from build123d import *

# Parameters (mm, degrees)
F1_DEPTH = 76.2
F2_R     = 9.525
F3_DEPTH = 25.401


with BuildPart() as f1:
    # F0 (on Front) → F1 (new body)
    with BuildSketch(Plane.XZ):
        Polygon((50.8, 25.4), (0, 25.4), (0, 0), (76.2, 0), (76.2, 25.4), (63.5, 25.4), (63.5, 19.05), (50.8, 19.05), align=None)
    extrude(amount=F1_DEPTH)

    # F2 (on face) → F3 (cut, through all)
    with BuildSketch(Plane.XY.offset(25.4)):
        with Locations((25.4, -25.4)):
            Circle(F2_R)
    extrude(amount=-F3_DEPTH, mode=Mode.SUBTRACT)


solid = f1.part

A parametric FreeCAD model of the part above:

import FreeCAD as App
import Part
import Sketcher
Q = App.Units.Quantity

doc = App.newDocument("Part")
body = doc.addObject("PartDesign::Body", "Body")

sketch1 = body.newObject("Sketcher::SketchObject", "Sketch")
sketch1.AttachmentSupport = (doc.getObject("XZ_Plane"), [""])
sketch1.MapMode = "FlatFace"
sketch1.addGeometry([
    Part.LineSegment(App.Vector(51, 25, 0), App.Vector(0, 25, 0)),
    Part.LineSegment(App.Vector(0, 25, 0), App.Vector(0, 0, 0)),
    Part.LineSegment(App.Vector(0, 0, 0), App.Vector(76, 0, 0)),
    Part.LineSegment(App.Vector(76, 0, 0), App.Vector(76, 25, 0)),
    Part.LineSegment(App.Vector(76, 25, 0), App.Vector(64, 25, 0)),
    Part.LineSegment(App.Vector(64, 25, 0), App.Vector(64, 19, 0)),
    Part.LineSegment(App.Vector(64, 19, 0), App.Vector(51, 19, 0)),
    Part.LineSegment(App.Vector(51, 19, 0), App.Vector(51, 25, 0)),
], False)
sketch1.addConstraint([
    Sketcher.Constraint("Coincident", 0, 2, 1, 1),
    Sketcher.Constraint("Coincident", 1, 2, 2, 1),
    Sketcher.Constraint("Coincident", 2, 2, 3, 1),
    Sketcher.Constraint("Coincident", 3, 2, 4, 1),
    Sketcher.Constraint("Coincident", 4, 2, 5, 1),
    Sketcher.Constraint("Coincident", 5, 2, 6, 1),
    Sketcher.Constraint("Coincident", 6, 2, 7, 1),
    Sketcher.Constraint("Coincident", 7, 2, 0, 1),
    Sketcher.Constraint("Horizontal", 0),
    Sketcher.Constraint("Vertical", 1),
    Sketcher.Constraint("Horizontal", 2),
    Sketcher.Constraint("Vertical", 3),
    Sketcher.Constraint("Horizontal", 4),
    Sketcher.Constraint("Vertical", 5),
    Sketcher.Constraint("Horizontal", 6),
    Sketcher.Constraint("Vertical", 7),
    Sketcher.Constraint("Coincident", 1, 2, -1, 1),
    Sketcher.Constraint("Horizontal", 0, 2, 3, 2),
    Sketcher.Constraint("Equal", 4, 6),
    Sketcher.Constraint("DistanceX", 0, 2, 0, 1, Q("2 in")),
    Sketcher.Constraint("DistanceX", 2, 1, 2, 2, Q("3 in")),
    Sketcher.Constraint("DistanceY", 1, 2, 1, 1, Q("1 in")),
    Sketcher.Constraint("DistanceY", 5, 2, 5, 1, Q("0.25 in")),
])
pad1 = body.newObject("PartDesign::Pad", "Pad")
pad1.Profile = sketch1
pad1.Length = Q("3 in")

sketch2 = body.newObject("Sketcher::SketchObject", "Sketch001")
sketch2.AttachmentSupport = (doc.getObject("XY_Plane"), [""])
sketch2.MapMode = "FlatFace"
sketch2.AttachmentOffset = App.Placement(App.Vector(0, 0, 1 * 25.4), App.Rotation())
sketch2.addGeometry(Part.Circle(App.Vector(25, -25, 0), App.Vector(0, 0, 1), 10), False)
sketch2.addConstraint([
    Sketcher.Constraint("Diameter", 0, Q("0.75 in")),
    Sketcher.Constraint("DistanceX", -1, 1, 0, 3, Q("1 in")),
    Sketcher.Constraint("DistanceY", 0, 3, -1, 1, Q("1 in")),
])
pocket1 = body.newObject("PartDesign::Pocket", "Pocket")
pocket1.Profile = sketch2
pocket1.Type = "ThroughAll"

doc.recompute()
